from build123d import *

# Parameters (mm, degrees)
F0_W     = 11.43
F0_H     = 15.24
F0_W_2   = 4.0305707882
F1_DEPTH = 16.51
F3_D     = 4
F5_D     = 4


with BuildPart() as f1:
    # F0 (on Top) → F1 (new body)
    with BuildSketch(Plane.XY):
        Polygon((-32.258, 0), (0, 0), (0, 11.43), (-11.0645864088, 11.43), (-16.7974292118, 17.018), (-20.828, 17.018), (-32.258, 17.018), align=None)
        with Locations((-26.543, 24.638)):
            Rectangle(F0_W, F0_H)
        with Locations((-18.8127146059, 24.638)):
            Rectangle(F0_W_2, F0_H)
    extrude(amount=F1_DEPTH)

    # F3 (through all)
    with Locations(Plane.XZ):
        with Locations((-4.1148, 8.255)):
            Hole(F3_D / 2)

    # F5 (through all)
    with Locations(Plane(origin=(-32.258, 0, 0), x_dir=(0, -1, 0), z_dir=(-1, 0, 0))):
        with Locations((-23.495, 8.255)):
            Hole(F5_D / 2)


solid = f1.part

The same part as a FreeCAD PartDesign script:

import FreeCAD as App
import Part
import Sketcher

V = App.Vector
Q = App.Units.Quantity


def add_polygon(sketch, points):
    """Adds a closed chain of lines whose ends are joined by coincident constraints."""
    first, n = sketch.GeometryCount, len(points)
    for a, b in zip(points, points[1:] + points[:1]):
        sketch.addGeometry(Part.LineSegment(App.Vector(*a, 0), App.Vector(*b, 0)), False)
    for i in range(n):
        sketch.addConstraint(Sketcher.Constraint("Coincident", first + i, 2, first + (i + 1) % n, 1))

doc = App.newDocument("Part")
body = doc.addObject("PartDesign::Body", "Body")

# Sketch on XY plane
sketch1 = body.newObject("Sketcher::SketchObject", "Sketch")
sketch1.AttachmentSupport = (doc.getObject("XY_Plane"), [""])
sketch1.MapMode = "FlatFace"
add_polygon(sketch1, [(-32, 0), (0, 0), (0, 11), (-11, 11), (-17, 17), (-17, 32), (-32, 32)])  # lines 0-6
sketch1.addConstraint(Sketcher.Constraint("Horizontal", 0))
sketch1.addConstraint(Sketcher.Constraint("Vertical", 1))
sketch1.addConstraint(Sketcher.Constraint("Horizontal", 2))
sketch1.addConstraint(Sketcher.Constraint("Vertical", 4))
sketch1.addConstraint(Sketcher.Constraint("Horizontal", 5))
sketch1.addConstraint(Sketcher.Constraint("Vertical", 6))
sketch1.addConstraint(Sketcher.Constraint("Coincident", 0, 2, -1, 1))
sketch1.addConstraint(Sketcher.Constraint("Equal", 0, 6))
sketch1.addConstraint(Sketcher.Constraint("DistanceY", 4, 1, 4, 2, Q("0.6 in")))
sketch1.addConstraint(Sketcher.Constraint("DistanceX", 0, 1, 0, 2, Q("1.27 in")))
sketch1.addConstraint(Sketcher.Constraint("DistanceY", 1, 1, 1, 2, Q("0.45 in")))
sketch1.addConstraint(Sketcher.Constraint("Distance", 3, Q("8.0057 mm")))
sketch1.addConstraint(Sketcher.Constraint("DistanceX", 5, 2, 5, 1, Q("15.460571 mm")))
pad1 = body.newObject("PartDesign::Pad", "Pad")
pad1.Profile = sketch1
pad1.Length = Q("0.65 in")

# Sketch on XZ plane
sketch2 = body.newObject("Sketcher::SketchObject", "Sketch001")
sketch2.AttachmentSupport = (doc.getObject("XZ_Plane"), [""])
sketch2.MapMode = "FlatFace"
sketch2.addGeometry(Part.Circle(V(-4.1, 8.3, 0), V(0, 0, 1), 2), False)
sketch2.addConstraint(Sketcher.Constraint("Diameter", 0, Q("4 mm")))
sketch2.addConstraint(Sketcher.Constraint("DistanceX", 0, 3, -1, 1, Q("0.162 in")))
sketch2.addConstraint(Sketcher.Constraint("DistanceY", -1, 1, 0, 3, Q("0.325 in")))
doc.recompute()
hole = body.newObject("PartDesign::Hole", "Hole")
hole.Profile = sketch2
hole.ThreadType = "None"
hole.Diameter = 4
hole.DepthType = "ThroughAll"

# Sketch on YZ plane
sketch3 = body.newObject("Sketcher::SketchObject", "Sketch002")
sketch3.AttachmentSupport = (doc.getObject("YZ_Plane"), [""])
sketch3.MapMode = "FlatFace"
sketch3.AttachmentOffset = App.Placement(V(0, 0, -1.27 * 25.4), App.Rotation())
sketch3.addGeometry(Part.Circle(V(23.5, 8.3, 0), V(0, 0, 1), 2), False)
sketch3.addConstraint(Sketcher.Constraint("Diameter", 0, Q("4 mm")))
sketch3.addConstraint(Sketcher.Constraint("DistanceX", -1, 1, 0, 3, Q("0.925 in")))
sketch3.addConstraint(Sketcher.Constraint("DistanceY", -1, 1, 0, 3, Q("0.325 in")))
doc.recompute()
hole2 = body.newObject("PartDesign::Hole", "Hole001")
hole2.Profile = sketch3
hole2.ThreadType = "None"
hole2.Diameter = 4
hole2.DepthType = "ThroughAll"
hole2.Reversed = True

doc.recompute()
